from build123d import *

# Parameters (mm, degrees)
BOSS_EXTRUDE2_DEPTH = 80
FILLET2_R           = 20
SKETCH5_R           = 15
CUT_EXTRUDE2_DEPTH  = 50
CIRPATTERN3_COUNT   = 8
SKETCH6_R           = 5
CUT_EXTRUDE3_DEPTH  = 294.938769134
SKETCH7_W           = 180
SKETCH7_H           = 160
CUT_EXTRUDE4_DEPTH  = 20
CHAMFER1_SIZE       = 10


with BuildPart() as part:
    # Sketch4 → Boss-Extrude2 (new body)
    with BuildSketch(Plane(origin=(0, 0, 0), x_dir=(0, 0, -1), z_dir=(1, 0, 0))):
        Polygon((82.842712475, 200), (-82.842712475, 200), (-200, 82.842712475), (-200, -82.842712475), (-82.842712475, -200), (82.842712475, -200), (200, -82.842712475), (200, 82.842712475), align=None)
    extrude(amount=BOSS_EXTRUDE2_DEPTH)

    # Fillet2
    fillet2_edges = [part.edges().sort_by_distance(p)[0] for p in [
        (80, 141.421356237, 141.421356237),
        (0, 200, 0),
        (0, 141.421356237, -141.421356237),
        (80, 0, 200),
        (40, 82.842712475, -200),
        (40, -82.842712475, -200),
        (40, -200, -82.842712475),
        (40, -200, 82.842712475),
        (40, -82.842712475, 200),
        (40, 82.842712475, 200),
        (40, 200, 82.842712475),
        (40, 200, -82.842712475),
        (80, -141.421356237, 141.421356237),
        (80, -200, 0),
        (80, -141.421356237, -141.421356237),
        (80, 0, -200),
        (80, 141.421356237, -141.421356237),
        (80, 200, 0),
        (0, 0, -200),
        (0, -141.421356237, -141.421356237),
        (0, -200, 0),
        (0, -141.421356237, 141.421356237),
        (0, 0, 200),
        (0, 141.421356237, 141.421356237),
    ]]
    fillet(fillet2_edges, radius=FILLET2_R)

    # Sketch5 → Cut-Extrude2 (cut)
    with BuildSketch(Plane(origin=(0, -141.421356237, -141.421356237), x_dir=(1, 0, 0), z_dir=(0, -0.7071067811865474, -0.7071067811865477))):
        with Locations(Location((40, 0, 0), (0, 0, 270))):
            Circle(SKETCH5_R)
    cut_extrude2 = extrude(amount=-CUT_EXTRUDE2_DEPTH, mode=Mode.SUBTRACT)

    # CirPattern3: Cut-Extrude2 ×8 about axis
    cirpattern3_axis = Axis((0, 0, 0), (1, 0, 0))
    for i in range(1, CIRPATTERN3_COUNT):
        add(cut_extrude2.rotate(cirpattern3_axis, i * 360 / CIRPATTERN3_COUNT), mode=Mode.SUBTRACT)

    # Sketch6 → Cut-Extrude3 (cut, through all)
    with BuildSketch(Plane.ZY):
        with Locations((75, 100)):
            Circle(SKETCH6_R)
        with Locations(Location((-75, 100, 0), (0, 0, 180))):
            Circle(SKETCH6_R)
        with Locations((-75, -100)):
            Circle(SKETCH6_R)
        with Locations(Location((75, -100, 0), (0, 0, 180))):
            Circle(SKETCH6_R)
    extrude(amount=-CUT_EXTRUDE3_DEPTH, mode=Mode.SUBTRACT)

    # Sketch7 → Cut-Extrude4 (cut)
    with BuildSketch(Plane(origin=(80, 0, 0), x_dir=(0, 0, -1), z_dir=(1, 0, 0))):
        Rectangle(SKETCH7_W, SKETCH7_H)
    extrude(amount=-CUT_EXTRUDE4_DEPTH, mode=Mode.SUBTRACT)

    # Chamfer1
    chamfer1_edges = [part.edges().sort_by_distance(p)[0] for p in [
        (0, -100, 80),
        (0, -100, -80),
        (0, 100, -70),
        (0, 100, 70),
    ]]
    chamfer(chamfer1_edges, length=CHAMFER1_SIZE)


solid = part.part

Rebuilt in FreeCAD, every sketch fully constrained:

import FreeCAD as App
import Part
import Sketcher
Q = App.Units.Quantity


def edges_at(feature, points):
    """Names of the edges that pass closest to the given points."""
    edges = feature.Shape.Edges
    near = lambda p: min(range(len(edges)), key=lambda i: edges[i].distToShape(Part.Vertex(*p))[0])
    return sorted({f"Edge{near(p) + 1}" for p in points})

doc = App.newDocument("Part")
body = doc.addObject("PartDesign::Body", "Body")

# Sketch on YZ plane
sketch1 = body.newObject("Sketcher::SketchObject", "Sketch")
sketch1.AttachmentSupport = (doc.getObject("YZ_Plane"), [""])
sketch1.MapMode = "FlatFace"
sketch1.addGeometry(Part.LineSegment(App.Vector(200, -82.842712, 0), App.Vector(200, 82.842712, 0)), False)
sketch1.addGeometry(Part.LineSegment(App.Vector(200, 82.842712, 0), App.Vector(82.842712, 200, 0)), False)
sketch1.addGeometry(Part.LineSegment(App.Vector(82.842712, 200, 0), App.Vector(-82.842712, 200, 0)), False)
sketch1.addGeometry(Part.LineSegment(App.Vector(-82.842712, 200, 0), App.Vector(-200, 82.842712, 0)), False)
sketch1.addGeometry(Part.LineSegment(App.Vector(-200, 82.842712, 0), App.Vector(-200, -82.842712, 0)), False)
sketch1.addGeometry(Part.LineSegment(App.Vector(-200, -82.842712, 0), App.Vector(-82.842712, -200, 0)), False)
sketch1.addGeometry(Part.LineSegment(App.Vector(-82.842712, -200, 0), App.Vector(82.842712, -200, 0)), False)
sketch1.addGeometry(Part.LineSegment(App.Vector(82.842712, -200, 0), App.Vector(200, -82.842712, 0)), False)
sketch1.addConstraint(Sketcher.Constraint("Coincident", 0, 2, 1, 1))
sketch1.addConstraint(Sketcher.Constraint("Coincident", 1, 2, 2, 1))
sketch1.addConstraint(Sketcher.Constraint("Coincident", 2, 2, 3, 1))
sketch1.addConstraint(Sketcher.Constraint("Coincident", 3, 2, 4, 1))
sketch1.addConstraint(Sketcher.Constraint("Coincident", 4, 2, 5, 1))
sketch1.addConstraint(Sketcher.Constraint("Coincident", 5, 2, 6, 1))
sketch1.addConstraint(Sketcher.Constraint("Coincident", 6, 2, 7, 1))
sketch1.addConstraint(Sketcher.Constraint("Coincident", 7, 2, 0, 1))
sketch1.addConstraint(Sketcher.Constraint("Vertical", 0))
sketch1.addConstraint(Sketcher.Constraint("Horizontal", 2))
sketch1.addConstraint(Sketcher.Constraint("Vertical", 4))
sketch1.addConstraint(Sketcher.Constraint("Horizontal", 6))
sketch1.addConstraint(Sketcher.Constraint("Symmetric", 0, 2, 4, 2, -1, 1))
sketch1.addConstraint(Sketcher.Constraint("Symmetric", 1, 2, 5, 2, -1, 1))
sketch1.addConstraint(Sketcher.Constraint("Perpendicular", 1, 3))
sketch1.addConstraint(Sketcher.Constraint("Perpendicular", 5, 7))
sketch1.addConstraint(Sketcher.Constraint("Horizontal", 0, 2, 3, 2))
sketch1.addConstraint(Sketcher.Constraint("Horizontal", 4, 2, 7, 2))
sketch1.addConstraint(Sketcher.Constraint("Vertical", 2, 2, 5, 2))
sketch1.addConstraint(Sketcher.Constraint("Equal", 6, 0))
sketch1.addConstraint(Sketcher.Constraint("DistanceX", -1, 1, 0, 2, Q("200 mm")))
sketch1.addConstraint(Sketcher.Constraint("DistanceX", 2, 2, 2, 1, Q("165.685425 mm")))
pad1 = body.newObject("PartDesign::Pad", "Pad")
pad1.Profile = sketch1
pad1.Length = 80
doc.recompute()

fillet = body.newObject("PartDesign::Fillet", "Fillet")
fillet.Base = (pad1, ["Edge1"])
fillet.UseAllEdges = True
fillet.Radius = 20

# Sketch on an angled plane
sketch2 = body.newObject("Sketcher::SketchObject", "Sketch001")
sketch2.Placement = App.Placement(App.Vector(0, -141.421356, -141.421356), App.Rotation(App.Vector(1, 0, 0), App.Vector(0, -0.707106781, 0.707106781), App.Vector(0, -0.707106781, -0.707106781), "ZXY"))
sketch2.addGeometry(Part.Circle(App.Vector(40, 0, 0), App.Vector(0, 0, 1), 15), False)
sketch2.addConstraint(Sketcher.Constraint("PointOnObject", 0, 3, -1))
sketch2.addConstraint(Sketcher.Constraint("Diameter", 0, Q("30 mm")))
sketch2.addConstraint(Sketcher.Constraint("DistanceX", -1, 1, 0, 3, Q("40 mm")))
pocket1 = body.newObject("PartDesign::Pocket", "Pocket")
pocket1.Profile = sketch2
pocket1.Length = 50
doc.recompute()

polarpattern = body.newObject("PartDesign::PolarPattern", "PolarPattern")
polarpattern.Originals = [pocket1]
polarpattern.Axis = (doc.getObject("X_Axis"), [""])
polarpattern.Angle = 360
polarpattern.Occurrences = 8
body.Tip = polarpattern

# Sketch on YZ plane
sketch3 = body.newObject("Sketcher::SketchObject", "Sketch002")
sketch3.AttachmentSupport = (doc.getObject("YZ_Plane"), [""])
sketch3.MapMode = "FlatFace"
sketch3.addGeometry(Part.Circle(App.Vector(100, 75, 0), App.Vector(0, 0, 1), 5), False)
sketch3.addGeometry(Part.Circle(App.Vector(100, -75, 0), App.Vector(0, 0, 1), 5), False)
sketch3.addGeometry(Part.Circle(App.Vector(-100, -75, 0), App.Vector(0, 0, 1), 5), False)
sketch3.addGeometry(Part.Circle(App.Vector(-100, 75, 0), App.Vector(0, 0, 1), 5), False)
sketch3.addConstraint(Sketcher.Constraint("Equal", 0, 1))
sketch3.addConstraint(Sketcher.Constraint("Equal", 1, 2))
sketch3.addConstraint(Sketcher.Constraint("Equal", 2, 3))
sketch3.addConstraint(Sketcher.Constraint("Symmetric", 0, 3, 2, 3, -1, 1))
sketch3.addConstraint(Sketcher.Constraint("Symmetric", 1, 3, 3, 3, -1, 1))
sketch3.addConstraint(Sketcher.Constraint("Symmetric", 1, 3, 2, 3, -2))
sketch3.addConstraint(Sketcher.Constraint("Diameter", 0, Q("10 mm")))
sketch3.addConstraint(Sketcher.Constraint("DistanceX", -1, 1, 0, 3, Q("100 mm")))
sketch3.addConstraint(Sketcher.Constraint("DistanceY", -1, 1, 0, 3, Q("75 mm")))
pocket2 = body.newObject("PartDesign::Pocket", "Pocket001")
pocket2.Profile = sketch3
pocket2.Type = "ThroughAll"
pocket2.Reversed = True

# Sketch on YZ plane
sketch4 = body.newObject("Sketcher::SketchObject", "Sketch003")
sketch4.AttachmentSupport = (doc.getObject("YZ_Plane"), [""])
sketch4.MapMode = "FlatFace"
sketch4.AttachmentOffset = App.Placement(App.Vector(0, 0, 80), App.Rotation())
sketch4.addGeometry(Part.LineSegment(App.Vector(80, 90, 0), App.Vector(-80, 90, 0)), False)
sketch4.addGeometry(Part.LineSegment(App.Vector(-80, 90, 0), App.Vector(-80, -90, 0)), False)
sketch4.addGeometry(Part.LineSegment(App.Vector(-80, -90, 0), App.Vector(80, -90, 0)), False)
sketch4.addGeometry(Part.LineSegment(App.Vector(80, -90, 0), App.Vector(80, 90, 0)), False)
sketch4.addConstraint(Sketcher.Constraint("Coincident", 0, 2, 1, 1))
sketch4.addConstraint(Sketcher.Constraint("Coincident", 1, 2, 2, 1))
sketch4.addConstraint(Sketcher.Constraint("Coincident", 2, 2, 3, 1))
sketch4.addConstraint(Sketcher.Constraint("Coincident", 3, 2, 0, 1))
sketch4.addConstraint(Sketcher.Constraint("Horizontal", 0))
sketch4.addConstraint(Sketcher.Constraint("Vertical", 1))
sketch4.addConstraint(Sketcher.Constraint("Horizontal", 2))
sketch4.addConstraint(Sketcher.Constraint("Vertical", 3))
sketch4.addConstraint(Sketcher.Constraint("Symmetric", 0, 2, 2, 2, -1, 1))
sketch4.addConstraint(Sketcher.Constraint("DistanceX", 0, 2, 0, 1, Q("160 mm")))
sketch4.addConstraint(Sketcher.Constraint("DistanceY", 1, 2, 1, 1, Q("180 mm")))
pocket3 = body.newObject("PartDesign::Pocket", "Pocket002")
pocket3.Profile = sketch4
pocket3.Length = 20
doc.recompute()

chamfer = body.newObject("PartDesign::Chamfer", "Chamfer")
chamfer.Base = (pocket3, edges_at(pocket3, [
    (0, -100, 80),
    (0, -100, -80),
    (0, 100, -70),
    (0, 100, 70),
]))
chamfer.Size = 10

doc.recompute()
